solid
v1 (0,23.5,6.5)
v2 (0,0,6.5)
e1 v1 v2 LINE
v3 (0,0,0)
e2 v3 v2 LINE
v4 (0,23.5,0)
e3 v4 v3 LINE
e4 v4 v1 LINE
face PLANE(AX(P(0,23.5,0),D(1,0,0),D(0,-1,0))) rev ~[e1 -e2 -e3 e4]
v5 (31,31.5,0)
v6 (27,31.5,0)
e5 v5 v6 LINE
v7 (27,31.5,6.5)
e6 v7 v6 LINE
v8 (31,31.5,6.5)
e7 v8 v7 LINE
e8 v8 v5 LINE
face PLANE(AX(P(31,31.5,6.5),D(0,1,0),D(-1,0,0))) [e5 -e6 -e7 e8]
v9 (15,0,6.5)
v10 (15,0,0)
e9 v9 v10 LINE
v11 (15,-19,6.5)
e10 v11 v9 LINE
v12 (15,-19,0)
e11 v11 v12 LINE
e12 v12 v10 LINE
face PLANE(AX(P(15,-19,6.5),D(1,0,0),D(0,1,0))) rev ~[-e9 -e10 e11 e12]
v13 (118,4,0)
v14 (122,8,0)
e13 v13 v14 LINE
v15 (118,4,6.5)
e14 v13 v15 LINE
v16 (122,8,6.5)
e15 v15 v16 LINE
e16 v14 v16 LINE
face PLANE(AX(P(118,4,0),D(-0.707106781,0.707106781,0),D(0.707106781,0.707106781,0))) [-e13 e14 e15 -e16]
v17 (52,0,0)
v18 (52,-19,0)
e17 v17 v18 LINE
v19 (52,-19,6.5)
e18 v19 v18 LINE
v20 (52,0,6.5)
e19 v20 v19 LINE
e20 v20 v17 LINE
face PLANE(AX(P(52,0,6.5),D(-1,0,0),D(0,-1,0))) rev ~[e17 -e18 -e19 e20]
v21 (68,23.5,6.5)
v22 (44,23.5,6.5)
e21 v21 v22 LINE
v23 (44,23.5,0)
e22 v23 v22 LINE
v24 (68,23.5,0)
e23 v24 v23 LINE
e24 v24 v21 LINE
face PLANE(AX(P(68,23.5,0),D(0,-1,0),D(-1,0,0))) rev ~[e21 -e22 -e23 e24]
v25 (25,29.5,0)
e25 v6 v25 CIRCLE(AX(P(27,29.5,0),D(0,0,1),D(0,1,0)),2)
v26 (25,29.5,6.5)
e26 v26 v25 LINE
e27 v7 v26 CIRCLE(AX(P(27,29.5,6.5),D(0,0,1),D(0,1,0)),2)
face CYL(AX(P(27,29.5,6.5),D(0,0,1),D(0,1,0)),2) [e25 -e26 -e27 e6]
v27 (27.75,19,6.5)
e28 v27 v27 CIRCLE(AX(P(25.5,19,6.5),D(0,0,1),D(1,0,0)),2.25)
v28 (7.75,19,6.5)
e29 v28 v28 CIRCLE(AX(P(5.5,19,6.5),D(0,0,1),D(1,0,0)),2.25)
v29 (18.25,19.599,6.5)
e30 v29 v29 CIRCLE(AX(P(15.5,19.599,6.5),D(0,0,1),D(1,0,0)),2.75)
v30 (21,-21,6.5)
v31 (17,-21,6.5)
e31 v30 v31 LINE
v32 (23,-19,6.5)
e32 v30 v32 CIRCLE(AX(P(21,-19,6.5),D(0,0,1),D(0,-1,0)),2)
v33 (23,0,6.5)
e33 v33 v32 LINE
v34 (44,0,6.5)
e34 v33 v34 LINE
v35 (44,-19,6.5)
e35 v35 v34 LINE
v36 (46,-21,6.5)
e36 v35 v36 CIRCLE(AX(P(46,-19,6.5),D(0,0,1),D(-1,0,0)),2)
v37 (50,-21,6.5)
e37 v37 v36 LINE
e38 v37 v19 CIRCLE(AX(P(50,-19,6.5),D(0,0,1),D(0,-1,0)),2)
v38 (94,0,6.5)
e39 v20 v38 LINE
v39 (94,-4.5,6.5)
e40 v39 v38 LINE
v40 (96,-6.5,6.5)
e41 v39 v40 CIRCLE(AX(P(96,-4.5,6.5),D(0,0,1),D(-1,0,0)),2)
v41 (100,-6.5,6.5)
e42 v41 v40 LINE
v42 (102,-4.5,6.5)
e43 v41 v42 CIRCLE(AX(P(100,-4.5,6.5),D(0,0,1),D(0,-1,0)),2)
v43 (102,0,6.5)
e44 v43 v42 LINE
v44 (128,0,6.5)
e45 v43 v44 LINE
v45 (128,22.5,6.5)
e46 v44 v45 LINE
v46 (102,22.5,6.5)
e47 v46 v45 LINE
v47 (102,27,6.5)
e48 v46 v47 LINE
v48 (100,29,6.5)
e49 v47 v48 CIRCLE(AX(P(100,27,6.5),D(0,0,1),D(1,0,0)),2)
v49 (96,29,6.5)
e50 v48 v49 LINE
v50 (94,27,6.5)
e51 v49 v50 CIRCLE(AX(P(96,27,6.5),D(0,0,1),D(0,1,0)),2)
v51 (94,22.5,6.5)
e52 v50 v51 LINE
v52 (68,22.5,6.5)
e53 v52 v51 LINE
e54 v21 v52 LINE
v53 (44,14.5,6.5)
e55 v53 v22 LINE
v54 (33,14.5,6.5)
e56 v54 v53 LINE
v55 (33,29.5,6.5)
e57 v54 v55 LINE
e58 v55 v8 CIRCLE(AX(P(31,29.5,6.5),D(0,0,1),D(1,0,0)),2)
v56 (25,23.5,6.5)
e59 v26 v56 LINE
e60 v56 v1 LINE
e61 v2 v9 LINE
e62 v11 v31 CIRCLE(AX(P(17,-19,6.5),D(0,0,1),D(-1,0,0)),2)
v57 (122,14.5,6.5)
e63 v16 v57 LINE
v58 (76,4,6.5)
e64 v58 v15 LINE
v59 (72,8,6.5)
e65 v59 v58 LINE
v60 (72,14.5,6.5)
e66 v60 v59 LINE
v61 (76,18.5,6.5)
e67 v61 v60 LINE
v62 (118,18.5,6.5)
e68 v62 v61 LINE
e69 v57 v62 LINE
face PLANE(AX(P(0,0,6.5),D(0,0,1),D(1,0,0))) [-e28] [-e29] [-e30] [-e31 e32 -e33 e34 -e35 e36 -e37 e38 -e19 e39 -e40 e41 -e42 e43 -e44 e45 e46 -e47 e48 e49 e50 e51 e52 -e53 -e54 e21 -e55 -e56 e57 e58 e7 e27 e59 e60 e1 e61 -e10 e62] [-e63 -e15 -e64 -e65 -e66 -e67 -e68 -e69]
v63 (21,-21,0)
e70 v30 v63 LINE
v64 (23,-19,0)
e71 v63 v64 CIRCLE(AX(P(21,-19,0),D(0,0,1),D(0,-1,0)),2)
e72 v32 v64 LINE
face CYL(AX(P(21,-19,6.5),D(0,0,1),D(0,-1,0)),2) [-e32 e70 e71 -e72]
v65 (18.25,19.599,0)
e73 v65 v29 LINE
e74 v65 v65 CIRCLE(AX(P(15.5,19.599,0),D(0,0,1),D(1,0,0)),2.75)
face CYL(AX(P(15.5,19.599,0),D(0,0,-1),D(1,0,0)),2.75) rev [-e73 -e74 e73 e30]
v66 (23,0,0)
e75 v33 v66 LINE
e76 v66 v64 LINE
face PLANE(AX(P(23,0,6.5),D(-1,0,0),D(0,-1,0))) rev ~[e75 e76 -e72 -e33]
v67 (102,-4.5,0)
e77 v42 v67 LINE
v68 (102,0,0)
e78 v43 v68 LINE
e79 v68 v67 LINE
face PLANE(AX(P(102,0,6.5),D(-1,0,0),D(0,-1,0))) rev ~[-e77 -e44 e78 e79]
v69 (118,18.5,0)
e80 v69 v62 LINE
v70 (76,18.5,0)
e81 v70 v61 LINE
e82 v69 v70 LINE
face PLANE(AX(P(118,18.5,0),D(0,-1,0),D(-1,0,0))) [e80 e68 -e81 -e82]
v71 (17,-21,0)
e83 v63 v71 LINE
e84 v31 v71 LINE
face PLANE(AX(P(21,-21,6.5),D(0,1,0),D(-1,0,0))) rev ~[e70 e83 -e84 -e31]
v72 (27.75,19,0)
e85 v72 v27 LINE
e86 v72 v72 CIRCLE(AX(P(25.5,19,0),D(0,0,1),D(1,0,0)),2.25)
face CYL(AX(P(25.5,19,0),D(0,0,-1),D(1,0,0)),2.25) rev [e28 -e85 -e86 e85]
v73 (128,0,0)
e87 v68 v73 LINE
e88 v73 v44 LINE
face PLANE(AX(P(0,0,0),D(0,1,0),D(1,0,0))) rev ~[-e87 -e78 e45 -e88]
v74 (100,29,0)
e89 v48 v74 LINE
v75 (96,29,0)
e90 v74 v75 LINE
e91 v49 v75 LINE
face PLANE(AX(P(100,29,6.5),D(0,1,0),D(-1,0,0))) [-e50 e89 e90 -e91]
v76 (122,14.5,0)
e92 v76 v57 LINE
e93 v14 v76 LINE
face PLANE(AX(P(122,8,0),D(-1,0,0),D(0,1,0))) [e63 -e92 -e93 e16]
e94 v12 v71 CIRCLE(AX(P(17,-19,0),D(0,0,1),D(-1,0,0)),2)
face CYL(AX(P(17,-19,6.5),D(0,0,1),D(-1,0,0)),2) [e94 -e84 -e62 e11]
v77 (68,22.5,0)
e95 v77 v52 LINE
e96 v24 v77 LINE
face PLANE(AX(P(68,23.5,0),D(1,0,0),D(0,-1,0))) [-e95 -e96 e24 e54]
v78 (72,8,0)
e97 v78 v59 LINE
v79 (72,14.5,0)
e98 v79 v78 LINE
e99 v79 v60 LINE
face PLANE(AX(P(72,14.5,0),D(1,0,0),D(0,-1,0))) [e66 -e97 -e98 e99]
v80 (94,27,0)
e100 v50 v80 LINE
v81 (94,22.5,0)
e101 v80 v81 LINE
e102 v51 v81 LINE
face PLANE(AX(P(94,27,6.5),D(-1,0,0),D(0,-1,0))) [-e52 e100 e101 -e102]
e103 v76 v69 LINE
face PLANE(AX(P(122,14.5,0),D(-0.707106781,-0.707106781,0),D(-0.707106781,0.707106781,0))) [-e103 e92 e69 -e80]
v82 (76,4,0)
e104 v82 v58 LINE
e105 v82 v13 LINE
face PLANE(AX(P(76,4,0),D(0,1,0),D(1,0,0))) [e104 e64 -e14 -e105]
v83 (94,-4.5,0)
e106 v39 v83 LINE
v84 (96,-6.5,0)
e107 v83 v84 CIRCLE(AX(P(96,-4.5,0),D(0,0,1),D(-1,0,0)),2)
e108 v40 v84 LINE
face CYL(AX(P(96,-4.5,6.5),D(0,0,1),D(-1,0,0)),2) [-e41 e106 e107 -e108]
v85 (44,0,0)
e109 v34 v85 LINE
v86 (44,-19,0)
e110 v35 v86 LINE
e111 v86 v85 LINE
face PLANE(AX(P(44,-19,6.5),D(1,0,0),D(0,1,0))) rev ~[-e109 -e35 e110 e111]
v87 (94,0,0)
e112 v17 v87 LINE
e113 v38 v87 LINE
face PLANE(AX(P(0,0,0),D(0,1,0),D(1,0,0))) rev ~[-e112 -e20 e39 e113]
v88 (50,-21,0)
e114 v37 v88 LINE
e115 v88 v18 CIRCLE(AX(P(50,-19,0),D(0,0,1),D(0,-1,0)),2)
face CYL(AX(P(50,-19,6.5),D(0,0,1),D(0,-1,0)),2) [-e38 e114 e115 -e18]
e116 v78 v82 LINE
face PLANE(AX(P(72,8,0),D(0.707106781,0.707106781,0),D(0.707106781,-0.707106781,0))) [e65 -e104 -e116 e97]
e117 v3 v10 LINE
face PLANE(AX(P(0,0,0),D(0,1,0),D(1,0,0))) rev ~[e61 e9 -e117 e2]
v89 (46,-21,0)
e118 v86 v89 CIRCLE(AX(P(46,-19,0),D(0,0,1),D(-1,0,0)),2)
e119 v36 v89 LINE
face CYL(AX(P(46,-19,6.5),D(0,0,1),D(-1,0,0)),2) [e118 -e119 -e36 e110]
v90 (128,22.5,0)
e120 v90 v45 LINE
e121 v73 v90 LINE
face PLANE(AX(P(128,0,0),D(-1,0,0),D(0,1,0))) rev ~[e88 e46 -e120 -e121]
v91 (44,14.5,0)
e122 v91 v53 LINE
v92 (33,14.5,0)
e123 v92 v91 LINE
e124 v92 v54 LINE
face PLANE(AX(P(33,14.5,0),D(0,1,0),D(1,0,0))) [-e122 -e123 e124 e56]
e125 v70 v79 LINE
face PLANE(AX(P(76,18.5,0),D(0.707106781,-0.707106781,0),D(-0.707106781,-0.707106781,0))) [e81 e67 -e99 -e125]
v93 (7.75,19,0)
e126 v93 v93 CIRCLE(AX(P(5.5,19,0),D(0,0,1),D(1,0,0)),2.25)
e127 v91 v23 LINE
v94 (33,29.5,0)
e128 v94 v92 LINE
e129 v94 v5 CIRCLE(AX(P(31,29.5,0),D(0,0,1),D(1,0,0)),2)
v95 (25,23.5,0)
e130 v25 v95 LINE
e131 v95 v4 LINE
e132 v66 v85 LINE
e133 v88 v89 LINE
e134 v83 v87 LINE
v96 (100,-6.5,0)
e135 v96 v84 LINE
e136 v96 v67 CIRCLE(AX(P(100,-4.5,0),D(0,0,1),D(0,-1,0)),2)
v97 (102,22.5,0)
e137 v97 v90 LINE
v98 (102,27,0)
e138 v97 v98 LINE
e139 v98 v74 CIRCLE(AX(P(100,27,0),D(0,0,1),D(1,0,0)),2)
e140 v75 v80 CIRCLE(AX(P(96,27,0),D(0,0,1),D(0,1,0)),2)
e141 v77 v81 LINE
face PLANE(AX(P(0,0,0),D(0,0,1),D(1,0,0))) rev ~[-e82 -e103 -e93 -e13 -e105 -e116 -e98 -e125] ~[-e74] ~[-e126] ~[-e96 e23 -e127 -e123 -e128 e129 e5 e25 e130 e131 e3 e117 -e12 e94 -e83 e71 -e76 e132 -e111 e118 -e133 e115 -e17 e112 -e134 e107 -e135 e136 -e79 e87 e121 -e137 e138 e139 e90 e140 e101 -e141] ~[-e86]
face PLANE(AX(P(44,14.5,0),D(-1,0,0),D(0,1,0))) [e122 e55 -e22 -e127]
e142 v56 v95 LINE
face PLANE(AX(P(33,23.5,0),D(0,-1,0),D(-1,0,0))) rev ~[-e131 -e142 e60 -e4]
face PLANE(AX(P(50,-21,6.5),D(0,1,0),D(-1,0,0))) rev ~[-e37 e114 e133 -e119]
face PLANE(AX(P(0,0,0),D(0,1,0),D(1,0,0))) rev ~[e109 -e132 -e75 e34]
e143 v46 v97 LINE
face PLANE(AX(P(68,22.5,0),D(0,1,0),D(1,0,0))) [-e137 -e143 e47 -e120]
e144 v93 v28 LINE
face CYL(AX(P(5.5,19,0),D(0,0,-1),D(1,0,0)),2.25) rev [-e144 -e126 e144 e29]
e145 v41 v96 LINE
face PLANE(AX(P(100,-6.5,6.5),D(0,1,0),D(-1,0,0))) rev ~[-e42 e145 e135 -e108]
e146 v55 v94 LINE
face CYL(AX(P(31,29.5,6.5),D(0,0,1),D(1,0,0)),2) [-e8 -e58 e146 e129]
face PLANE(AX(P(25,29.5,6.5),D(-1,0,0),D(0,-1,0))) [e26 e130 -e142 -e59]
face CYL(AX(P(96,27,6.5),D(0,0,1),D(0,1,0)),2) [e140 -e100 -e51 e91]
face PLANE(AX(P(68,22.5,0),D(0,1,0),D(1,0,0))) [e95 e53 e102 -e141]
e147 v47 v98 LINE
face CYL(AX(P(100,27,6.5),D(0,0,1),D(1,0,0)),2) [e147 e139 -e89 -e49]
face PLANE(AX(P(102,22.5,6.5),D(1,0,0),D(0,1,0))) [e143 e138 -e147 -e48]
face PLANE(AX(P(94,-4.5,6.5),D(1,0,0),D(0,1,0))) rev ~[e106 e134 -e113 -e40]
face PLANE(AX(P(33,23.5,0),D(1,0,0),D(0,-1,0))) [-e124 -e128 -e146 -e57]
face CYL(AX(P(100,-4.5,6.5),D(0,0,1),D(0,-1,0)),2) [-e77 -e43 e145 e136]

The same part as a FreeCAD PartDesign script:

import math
import FreeCAD as App
import Part
import Sketcher

V = App.Vector
Q = App.Units.Quantity


def add_polygon(sketch, points):
    """Adds a closed chain of lines whose ends are joined by coincident constraints."""
    first, n = sketch.GeometryCount, len(points)
    for a, b in zip(points, points[1:] + points[:1]):
        sketch.addGeometry(Part.LineSegment(App.Vector(*a, 0), App.Vector(*b, 0)), False)
    for i in range(n):
        sketch.addConstraint(Sketcher.Constraint("Coincident", first + i, 2, first + (i + 1) % n, 1))

doc = App.newDocument("Part")
body = doc.addObject("PartDesign::Body", "Body")

# Sketch on XY plane
sketch1 = body.newObject("Sketcher::SketchObject", "Sketch")
sketch1.AttachmentSupport = (doc.getObject("XY_Plane"), [""])
sketch1.MapMode = "FlatFace"
add_polygon(sketch1, [(0, 23.5), (0, 0), (128, 0), (128, 22.5), (68, 22.5), (68, 23.5), (44, 23.5), (44, 14.5), (33, 14.5), (33, 23.5)])  # lines 0-9
add_polygon(sketch1, [(72, 8), (72, 14.5), (76, 18.5), (118, 18.5), (122, 14.5), (122, 8), (118, 4), (76, 4)])  # lines 10-17
sketch1.addGeometry(Part.Circle(V(5.5, 19, 0), V(0, 0, 1), 2.25), False)  # 18
sketch1.addGeometry(Part.Circle(V(15.5, 19.599, 0), V(0, 0, 1), 2.75), False)  # 19
sketch1.addGeometry(Part.Circle(V(25.5, 19, 0), V(0, 0, 1), 2.25), False)  # 20
sketch1.addConstraint([
    Sketcher.Constraint("Vertical", 0),
    Sketcher.Constraint("Horizontal", 1),
    Sketcher.Constraint("Vertical", 2),
    Sketcher.Constraint("Horizontal", 3),
    Sketcher.Constraint("Vertical", 4),
    Sketcher.Constraint("Horizontal", 5),
    Sketcher.Constraint("Vertical", 6),
    Sketcher.Constraint("Horizontal", 7),
    Sketcher.Constraint("Vertical", 8),
    Sketcher.Constraint("Horizontal", 9),
    Sketcher.Constraint("Vertical", 10),
    Sketcher.Constraint("Horizontal", 12),
    Sketcher.Constraint("Vertical", 14),
    Sketcher.Constraint("Horizontal", 16),
    Sketcher.Constraint("Coincident", 0, 2, -1, 1),
    Sketcher.Constraint("Equal", 18, 20),
    Sketcher.Constraint("Perpendicular", 11, 13),
    Sketcher.Constraint("Perpendicular", 13, 15),
    Sketcher.Constraint("Perpendicular", 15, 17),
    Sketcher.Constraint("Horizontal", 18, 3, 20, 3),
    Sketcher.Constraint("Horizontal", 5, 2, 8, 2),
    Sketcher.Constraint("Horizontal", 7, 2, 10, 2),
    Sketcher.Constraint("Horizontal", 10, 2, 13, 2),
    Sketcher.Constraint("Horizontal", 14, 2, 17, 2),
    Sketcher.Constraint("Vertical", 12, 2, 15, 2),
    Sketcher.Constraint("Vertical", 11, 2, 16, 2),
    Sketcher.Constraint("Diameter", 18, Q("4.5 mm")),
    Sketcher.Constraint("Diameter", 19, Q("5.5 mm")),
    Sketcher.Constraint("DistanceX", 1, 1, 1, 2, Q("128 mm")),
    Sketcher.Constraint("DistanceX", 3, 2, 3, 1, Q("60 mm")),
    Sketcher.Constraint("DistanceX", 7, 2, 7, 1, Q("11 mm")),
    Sketcher.Constraint("DistanceX", 9, 2, 9, 1, Q("33 mm")),
    Sketcher.Constraint("DistanceY", 6, 2, 6, 1, Q("9 mm")),
    Sketcher.Constraint("DistanceY", 0, 2, 0, 1, Q("23.5 mm")),
    Sketcher.Constraint("DistanceY", 2, 1, 2, 2, Q("22.5 mm")),
    Sketcher.Constraint("DistanceY", -1, 1, 14, 2, Q("8 mm")),
    Sketcher.Constraint("DistanceY", -1, 1, 15, 2, Q("4 mm")),
    Sketcher.Constraint("DistanceX", 18, 3, 19, 3, Q("10 mm")),
    Sketcher.Constraint("DistanceX", 19, 3, 20, 3, Q("10 mm")),
    Sketcher.Constraint("DistanceX", 3, 2, 10, 2, Q("4 mm")),
    Sketcher.Constraint("DistanceX", 12, 2, 2, 2, Q("10 mm")),
    Sketcher.Constraint("DistanceX", -1, 1, 18, 3, Q("5.5 mm")),
    Sketcher.Constraint("DistanceY", 20, 3, 4, 2, Q("4.5 mm")),
    Sketcher.Constraint("DistanceY", -1, 1, 19, 3, Q("19.599 mm")),
])
pad1 = body.newObject("PartDesign::Pad", "Pad")
pad1.Profile = sketch1
pad1.Length = 6.5

# Sketch on XY plane
sketch2 = body.newObject("Sketcher::SketchObject", "Sketch001")
sketch2.AttachmentSupport = (doc.getObject("XY_Plane"), [""])
sketch2.MapMode = "FlatFace"
sketch2.AttachmentOffset = App.Placement(V(0, 0, 6.5), App.Rotation())
sketch2.addGeometry([
    Part.LineSegment(V(94, 22.5, 0), V(102, 22.5, 0)),  # 0
    Part.LineSegment(V(102, 22.5, 0), V(102, 27, 0)),  # 1
    Part.ArcOfCircle(Part.Circle(V(100, 27, 0), V(0, 0, 1), 2), math.radians(0), math.radians(90)),  # 2
    Part.LineSegment(V(100, 29, 0), V(96, 29, 0)),  # 3
    Part.ArcOfCircle(Part.Circle(V(96, 27, 0), V(0, 0, 1), 2), math.radians(90), math.radians(180)),  # 4
    Part.LineSegment(V(94, 27, 0), V(94, 22.5, 0)),  # 5
    Part.LineSegment(V(102, 0, 0), V(94, 0, 0)),  # 6
    Part.LineSegment(V(94, 0, 0), V(94, -4.5, 0)),  # 7
    Part.ArcOfCircle(Part.Circle(V(96, -4.5, 0), V(0, 0, 1), 2), math.radians(180), math.radians(270)),  # 8
    Part.LineSegment(V(96, -6.5, 0), V(100, -6.5, 0)),  # 9
    Part.ArcOfCircle(Part.Circle(V(100, -4.5, 0), V(0, 0, 1), 2), math.radians(-90), math.radians(0)),  # 10
    Part.LineSegment(V(102, -4.5, 0), V(102, 0, 0)),  # 11
    Part.LineSegment(V(52, 0, 0), V(44, 0, 0)),  # 12
    Part.LineSegment(V(44, 0, 0), V(44, -19, 0)),  # 13
    Part.ArcOfCircle(Part.Circle(V(46, -19, 0), V(0, 0, 1), 2), math.radians(180), math.radians(270)),  # 14
    Part.LineSegment(V(46, -21, 0), V(50, -21, 0)),  # 15
    Part.ArcOfCircle(Part.Circle(V(50, -19, 0), V(0, 0, 1), 2), math.radians(-90), math.radians(0)),  # 16
    Part.LineSegment(V(52, -19, 0), V(52, 0, 0)),  # 17
    Part.LineSegment(V(23, 0, 0), V(15, 0, 0)),  # 18
    Part.LineSegment(V(15, 0, 0), V(15, -19, 0)),  # 19
    Part.ArcOfCircle(Part.Circle(V(17, -19, 0), V(0, 0, 1), 2), math.radians(180), math.radians(270)),  # 20
    Part.LineSegment(V(17, -21, 0), V(21, -21, 0)),  # 21
    Part.ArcOfCircle(Part.Circle(V(21, -19, 0), V(0, 0, 1), 2), math.radians(-90), math.radians(0)),  # 22
    Part.LineSegment(V(23, -19, 0), V(23, 0, 0)),  # 23
    Part.LineSegment(V(25, 29.5, 0), V(25, 23.5, 0)),  # 24
    Part.LineSegment(V(25, 23.5, 0), V(33, 23.5, 0)),  # 25
    Part.LineSegment(V(33, 23.5, 0), V(33, 29.5, 0)),  # 26
    Part.ArcOfCircle(Part.Circle(V(31, 29.5, 0), V(0, 0, 1), 2), math.radians(0), math.radians(90)),  # 27
    Part.LineSegment(V(31, 31.5, 0), V(27, 31.5, 0)),  # 28
    Part.ArcOfCircle(Part.Circle(V(27, 29.5, 0), V(0, 0, 1), 2), math.radians(90), math.radians(180)),  # 29
], False)
sketch2.addConstraint([
    Sketcher.Constraint("Coincident", 0, 2, 1, 1),
    Sketcher.Constraint("Tangent", 1, 2, 2, 1),
    Sketcher.Constraint("Tangent", 2, 2, 3, 1),
    Sketcher.Constraint("Tangent", 3, 2, 4, 1),
    Sketcher.Constraint("Tangent", 4, 2, 5, 1),
    Sketcher.Constraint("Coincident", 5, 2, 0, 1),
    Sketcher.Constraint("Coincident", 6, 2, 7, 1),
    Sketcher.Constraint("Tangent", 7, 2, 8, 1),
    Sketcher.Constraint("Tangent", 8, 2, 9, 1),
    Sketcher.Constraint("Tangent", 9, 2, 10, 1),
    Sketcher.Constraint("Tangent", 10, 2, 11, 1),
    Sketcher.Constraint("Coincident", 11, 2, 6, 1),
    Sketcher.Constraint("Coincident", 12, 2, 13, 1),
    Sketcher.Constraint("Tangent", 13, 2, 14, 1),
    Sketcher.Constraint("Tangent", 14, 2, 15, 1),
    Sketcher.Constraint("Tangent", 15, 2, 16, 1),
    Sketcher.Constraint("Tangent", 16, 2, 17, 1),
    Sketcher.Constraint("Coincident", 17, 2, 12, 1),
    Sketcher.Constraint("Coincident", 18, 2, 19, 1),
    Sketcher.Constraint("Tangent", 19, 2, 20, 1),
    Sketcher.Constraint("Tangent", 20, 2, 21, 1),
    Sketcher.Constraint("Tangent", 21, 2, 22, 1),
    Sketcher.Constraint("Tangent", 22, 2, 23, 1),
    Sketcher.Constraint("Coincident", 23, 2, 18, 1),
    Sketcher.Constraint("Coincident", 24, 2, 25, 1),
    Sketcher.Constraint("Coincident", 25, 2, 26, 1),
    Sketcher.Constraint("Tangent", 26, 2, 27, 1),
    Sketcher.Constraint("Tangent", 27, 2, 28, 1),
    Sketcher.Constraint("Tangent", 28, 2, 29, 1),
    Sketcher.Constraint("Tangent", 29, 2, 24, 1),
    Sketcher.Constraint("Horizontal", 0),
    Sketcher.Constraint("Vertical", 1),
    Sketcher.Constraint("Horizontal", 3),
    Sketcher.Constraint("Vertical", 5),
    Sketcher.Constraint("Horizontal", 6),
    Sketcher.Constraint("Vertical", 7),
    Sketcher.Constraint("Horizontal", 9),
    Sketcher.Constraint("Vertical", 11),
    Sketcher.Constraint("Horizontal", 12),
    Sketcher.Constraint("Vertical", 13),
    Sketcher.Constraint("Horizontal", 15),
    Sketcher.Constraint("Vertical", 17),
    Sketcher.Constraint("Horizontal", 18),
    Sketcher.Constraint("Vertical", 19),
    Sketcher.Constraint("Horizontal", 21),
    Sketcher.Constraint("Vertical", 23),
    Sketcher.Constraint("Vertical", 24),
    Sketcher.Constraint("Horizontal", 25),
    Sketcher.Constraint("Vertical", 26),
    Sketcher.Constraint("Horizontal", 28),
    Sketcher.Constraint("Equal", 2, 4),
    Sketcher.Constraint("Equal", 4, 8),
    Sketcher.Constraint("Equal", 8, 10),
    Sketcher.Constraint("Equal", 10, 14),
    Sketcher.Constraint("Equal", 14, 16),
    Sketcher.Constraint("Equal", 16, 20),
    Sketcher.Constraint("Equal", 20, 22),
    Sketcher.Constraint("Equal", 22, 27),
    Sketcher.Constraint("Equal", 27, 29),
    Sketcher.Constraint("PointOnObject", 6, 2, -1),
    Sketcher.Constraint("PointOnObject", 12, 2, -1),
    Sketcher.Constraint("PointOnObject", 18, 2, -1),
    Sketcher.Constraint("Horizontal", 16, 3, 20, 3),
    Sketcher.Constraint("Vertical", 4, 3, 8, 3),
    Sketcher.Constraint("Vertical", 2, 3, 10, 3),
    Sketcher.Constraint("Equal", 6, 12),
    Sketcher.Constraint("Equal", 12, 18),
    Sketcher.Constraint("Equal", 18, 25),
    Sketcher.Constraint("Equal", 5, 7),
    Sketcher.Constraint("Radius", 2, Q("2 mm")),
    Sketcher.Constraint("DistanceX", 0, 1, 0, 2, Q("8 mm")),
    Sketcher.Constraint("DistanceX", -1, 1, 22, 3, Q("21 mm")),
    Sketcher.Constraint("DistanceY", 14, 2, -1, 1, Q("21 mm")),
    Sketcher.Constraint("DistanceX", 27, 3, 14, 3, Q("15 mm")),
    Sketcher.Constraint("DistanceX", 23, 2, 24, 2, Q("2 mm")),
    Sketcher.Constraint("DistanceY", 25, 2, 27, 2, Q("8 mm")),
    Sketcher.Constraint("DistanceY", 8, 2, -1, 1, Q("6.5 mm")),
    Sketcher.Constraint("DistanceX", -1, 1, 2, 3, Q("100 mm")),
    Sketcher.Constraint("DistanceY", -1, 1, 2, 3, Q("27 mm")),
    Sketcher.Constraint("DistanceY", -1, 1, 27, 3, Q("29.5 mm")),
])
pad2 = body.newObject("PartDesign::Pad", "Pad001")
pad2.Profile = sketch2
pad2.Length = 6.5
pad2.Reversed = True

doc.recompute()
